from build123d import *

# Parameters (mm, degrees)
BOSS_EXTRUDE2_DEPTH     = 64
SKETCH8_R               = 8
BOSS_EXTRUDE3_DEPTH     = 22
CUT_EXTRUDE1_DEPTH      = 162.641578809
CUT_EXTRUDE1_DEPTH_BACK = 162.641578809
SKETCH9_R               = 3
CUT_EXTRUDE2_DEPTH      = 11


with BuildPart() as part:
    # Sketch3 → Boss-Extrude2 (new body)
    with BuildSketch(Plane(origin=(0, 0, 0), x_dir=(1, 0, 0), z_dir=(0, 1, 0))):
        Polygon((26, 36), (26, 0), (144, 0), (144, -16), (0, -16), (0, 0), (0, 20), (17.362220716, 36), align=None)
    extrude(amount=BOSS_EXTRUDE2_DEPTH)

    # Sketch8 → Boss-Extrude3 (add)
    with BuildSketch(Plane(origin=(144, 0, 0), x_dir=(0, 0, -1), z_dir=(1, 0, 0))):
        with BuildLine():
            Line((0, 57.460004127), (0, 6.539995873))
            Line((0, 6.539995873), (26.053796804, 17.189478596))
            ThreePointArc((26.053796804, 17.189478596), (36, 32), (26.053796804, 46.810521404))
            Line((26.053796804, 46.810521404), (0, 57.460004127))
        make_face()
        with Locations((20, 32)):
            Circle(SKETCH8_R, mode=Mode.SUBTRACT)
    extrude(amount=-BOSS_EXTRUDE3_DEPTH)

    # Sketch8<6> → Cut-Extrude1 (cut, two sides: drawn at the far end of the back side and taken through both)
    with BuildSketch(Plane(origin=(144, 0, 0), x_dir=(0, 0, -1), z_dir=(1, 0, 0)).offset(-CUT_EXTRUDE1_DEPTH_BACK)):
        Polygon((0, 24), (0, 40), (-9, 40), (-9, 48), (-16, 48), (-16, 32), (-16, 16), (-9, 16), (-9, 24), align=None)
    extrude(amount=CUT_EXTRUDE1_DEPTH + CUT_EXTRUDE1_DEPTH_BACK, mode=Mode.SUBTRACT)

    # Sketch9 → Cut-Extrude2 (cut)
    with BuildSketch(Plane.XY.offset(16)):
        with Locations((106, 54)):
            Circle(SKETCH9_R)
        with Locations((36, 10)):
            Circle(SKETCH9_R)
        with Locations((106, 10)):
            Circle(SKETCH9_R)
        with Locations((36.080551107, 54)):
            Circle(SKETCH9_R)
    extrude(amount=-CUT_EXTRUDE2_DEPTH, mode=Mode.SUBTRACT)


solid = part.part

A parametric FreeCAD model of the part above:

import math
import FreeCAD as App
import Part
import Sketcher
from FreeCAD import Vector
Q = App.Units.Quantity

doc = App.newDocument("Part")
params = doc.addObject("Spreadsheet::Sheet", "Params")
for row, (alias, value) in enumerate([
    ("sketch1_width", "144 mm"),
    ("sketch1_width2", "118 mm"),
    ("sketch1_height", "36 mm"),
    ("sketch1_height2", "16 mm"),
    ("pad1_length", "64 mm"),
    ("sketch2_diameter", "16 mm"),
    ("sketch2_radius", "16 mm"),
    ("pad2_length", "22 mm"),
    ("sketch3_width", "16 mm"),
    ("sketch3_width2", "8 mm"),
    ("sketch3_height", "9 mm"),
    ("sketch3_height2", "7 mm"),
    ("sketch4_diameter", "6 mm"),
    ("pocket2_length", "11 mm"),
], start=1):
    params.set(f"A{row}", alias)
    params.set(f"B{row}", "=" + value)
    params.setAlias(f"B{row}", alias)

body = doc.addObject("PartDesign::Body", "Body")

sketch1 = body.newObject("Sketcher::SketchObject", "Sketch")
sketch1.AttachmentSupport = (doc.getObject("XZ_Plane"), [""])
sketch1.MapMode = "FlatFace"
sketch1.addGeometry([
    Part.LineSegment(Vector(26, 0, 0), Vector(26, -36, 0)),
    Part.LineSegment(Vector(26, -36, 0), Vector(17.362221, -36, 0)),
    Part.LineSegment(Vector(17.362221, -36, 0), Vector(0, -20, 0)),
    Part.LineSegment(Vector(0, -20, 0), Vector(0, 16, 0)),
    Part.LineSegment(Vector(0, 16, 0), Vector(144, 16, 0)),
    Part.LineSegment(Vector(144, 16, 0), Vector(144, 0, 0)),
    Part.LineSegment(Vector(144, 0, 0), Vector(26, 0, 0)),
], False)
sketch1.addConstraint([
    Sketcher.Constraint("Coincident", 0, 2, 1, 1),
    Sketcher.Constraint("Coincident", 1, 2, 2, 1),
    Sketcher.Constraint("Coincident", 2, 2, 3, 1),
    Sketcher.Constraint("Coincident", 3, 2, 4, 1),
    Sketcher.Constraint("Coincident", 4, 2, 5, 1),
    Sketcher.Constraint("Coincident", 5, 2, 6, 1),
    Sketcher.Constraint("Coincident", 6, 2, 0, 1),
    Sketcher.Constraint("Vertical", 0),
    Sketcher.Constraint("Horizontal", 1),
    Sketcher.Constraint("Vertical", 3),
    Sketcher.Constraint("Horizontal", 4),
    Sketcher.Constraint("Vertical", 5),
    Sketcher.Constraint("Horizontal", 6),
    Sketcher.Constraint("PointOnObject", 2, 2, -2),
    Sketcher.Constraint("PointOnObject", 5, 2, -1),
    Sketcher.Constraint("Equal", 0, 3),
    Sketcher.Constraint("DistanceX", 4, 1, 4, 2, Q("144 mm")),
    Sketcher.Constraint("DistanceX", 6, 2, 6, 1, Q("118 mm")),
    Sketcher.Constraint("DistanceY", 0, 2, 0, 1, Q("36 mm")),
    Sketcher.Constraint("DistanceY", 5, 2, 5, 1, Q("16 mm")),
    Sketcher.Constraint("DistanceX", 1, 2, 1, 1, Q("8.637779 mm")),
])
sketch1.setExpression("Constraints[16]", "Params.sketch1_width")
sketch1.setExpression("Constraints[17]", "Params.sketch1_width2")
sketch1.setExpression("Constraints[18]", "Params.sketch1_height")
sketch1.setExpression("Constraints[19]", "Params.sketch1_height2")
pad1 = body.newObject("PartDesign::Pad", "Pad")
pad1.Profile = sketch1
pad1.setExpression("Length", "Params.pad1_length")
pad1.Reversed = True

sketch2 = body.newObject("Sketcher::SketchObject", "Sketch001")
sketch2.AttachmentSupport = (doc.getObject("YZ_Plane"), [""])
sketch2.MapMode = "FlatFace"
sketch2.AttachmentOffset = App.Placement(Vector(0, 0, 144), App.Rotation())
sketch2.addGeometry([
    Part.LineSegment(Vector(57.460004, 0, 0), Vector(6.539996, 0, 0)),
    Part.LineSegment(Vector(6.539996, 0, 0), Vector(17.189479, -26.053797, 0)),
    Part.ArcOfCircle(Part.Circle(Vector(32, -20, 0), Vector(0, 0, 1), 16), math.radians(-157.767723), math.radians(-22.232277)),
    Part.LineSegment(Vector(46.810521, -26.053797, 0), Vector(57.460004, 0, 0)),
    Part.Circle(Vector(32, -20, 0), Vector(0, 0, 1), 8),
], False)
sketch2.addConstraint([
    Sketcher.Constraint("Coincident", 0, 2, 1, 1),
    Sketcher.Constraint("Tangent", 1, 2, 2, 1),
    Sketcher.Constraint("Tangent", 2, 2, 3, 1),
    Sketcher.Constraint("Coincident", 3, 2, 0, 1),
    Sketcher.Constraint("Horizontal", 0),
    Sketcher.Constraint("Coincident", 4, 3, 2, 3),
    Sketcher.Constraint("PointOnObject", 0, 2, -1),
    Sketcher.Constraint("Horizontal", 1, 2, 2, 2),
    Sketcher.Constraint("Diameter", 4, Q("16 mm")),
    Sketcher.Constraint("Radius", 2, Q("16 mm")),
    Sketcher.Constraint("DistanceX", -1, 1, 2, 3, Q("32 mm")),
    Sketcher.Constraint("DistanceY", 2, 3, -1, 1, Q("20 mm")),
    Sketcher.Constraint("DistanceX", 0, 2, 0, 1, Q("50.920008 mm")),
])
sketch2.setExpression("Constraints[8]", "Params.sketch2_diameter")
sketch2.setExpression("Constraints[9]", "Params.sketch2_radius")
pad2 = body.newObject("PartDesign::Pad", "Pad001")
pad2.Profile = sketch2
pad2.setExpression("Length", "Params.pad2_length")
pad2.Reversed = True

sketch3 = body.newObject("Sketcher::SketchObject", "Sketch002")
sketch3.AttachmentSupport = (doc.getObject("YZ_Plane"), [""])
sketch3.MapMode = "FlatFace"
sketch3.AttachmentOffset = App.Placement(Vector(0, 0, 144), App.Rotation())
sketch3.addGeometry([
    Part.LineSegment(Vector(24, 0, 0), Vector(40, 0, 0)),
    Part.LineSegment(Vector(40, 0, 0), Vector(40, 9, 0)),
    Part.LineSegment(Vector(40, 9, 0), Vector(48, 9, 0)),
    Part.LineSegment(Vector(48, 9, 0), Vector(48, 16, 0)),
    Part.LineSegment(Vector(48, 16, 0), Vector(16, 16, 0)),
    Part.LineSegment(Vector(16, 16, 0), Vector(16, 9, 0)),
    Part.LineSegment(Vector(16, 9, 0), Vector(24, 9, 0)),
    Part.LineSegment(Vector(24, 9, 0), Vector(24, 0, 0)),
], False)
sketch3.addConstraint([
    Sketcher.Constraint("Coincident", 0, 2, 1, 1),
    Sketcher.Constraint("Coincident", 1, 2, 2, 1),
    Sketcher.Constraint("Coincident", 2, 2, 3, 1),
    Sketcher.Constraint("Coincident", 3, 2, 4, 1),
    Sketcher.Constraint("Coincident", 4, 2, 5, 1),
    Sketcher.Constraint("Coincident", 5, 2, 6, 1),
    Sketcher.Constraint("Coincident", 6, 2, 7, 1),
    Sketcher.Constraint("Coincident", 7, 2, 0, 1),
    Sketcher.Constraint("Horizontal", 0),
    Sketcher.Constraint("Vertical", 1),
    Sketcher.Constraint("Horizontal", 2),
    Sketcher.Constraint("Vertical", 3),
    Sketcher.Constraint("Horizontal", 4),
    Sketcher.Constraint("Vertical", 5),
    Sketcher.Constraint("Horizontal", 6),
    Sketcher.Constraint("Vertical", 7),
    Sketcher.Constraint("PointOnObject", 0, 2, -1),
    Sketcher.Constraint("Horizontal", 2, 2, 5, 2),
    Sketcher.Constraint("Equal", 2, 6),
    Sketcher.Constraint("DistanceX", 0, 1, 0, 2, Q("16 mm")),
    Sketcher.Constraint("DistanceX", 2, 1, 2, 2, Q("8 mm")),
    Sketcher.Constraint("DistanceY", 1, 1, 1, 2, Q("9 mm")),
    Sketcher.Constraint("DistanceY", 3, 1, 3, 2, Q("7 mm")),
    Sketcher.Constraint("DistanceX", -1, 1, 0, 2, Q("40 mm")),
])
sketch3.setExpression("Constraints[19]", "Params.sketch3_width")
sketch3.setExpression("Constraints[20]", "Params.sketch3_width2")
sketch3.setExpression("Constraints[21]", "Params.sketch3_height")
sketch3.setExpression("Constraints[22]", "Params.sketch3_height2")
pocket1 = body.newObject("PartDesign::Pocket", "Pocket")
pocket1.Profile = sketch3
pocket1.Type = "ThroughAll"
pocket1.Midplane = True

sketch4 = body.newObject("Sketcher::SketchObject", "Sketch003")
sketch4.AttachmentSupport = (doc.getObject("XY_Plane"), [""])
sketch4.MapMode = "FlatFace"
sketch4.AttachmentOffset = App.Placement(Vector(0, 0, 16), App.Rotation())
sketch4.addGeometry([
    Part.Circle(Vector(106, 54, 0), Vector(0, 0, 1), 3),
    Part.Circle(Vector(36, 10, 0), Vector(0, 0, 1), 3),
    Part.Circle(Vector(106, 10, 0), Vector(0, 0, 1), 3),
    Part.Circle(Vector(36.080551, 54, 0), Vector(0, 0, 1), 3),
], False)
sketch4.addConstraint([
    Sketcher.Constraint("Equal", 0, 1),
    Sketcher.Constraint("Equal", 1, 2),
    Sketcher.Constraint("Equal", 2, 3),
    Sketcher.Constraint("Horizontal", 1, 3, 2, 3),
    Sketcher.Constraint("Horizontal", 0, 3, 3, 3),
    Sketcher.Constraint("Vertical", 0, 3, 2, 3),
    Sketcher.Constraint("Diameter", 0, Q("6 mm")),
    Sketcher.Constraint("DistanceX", -1, 1, 0, 3, Q("106 mm")),
    Sketcher.Constraint("DistanceY", -1, 1, 0, 3, Q("54 mm")),
    Sketcher.Constraint("DistanceX", -1, 1, 1, 3, Q("36 mm")),
    Sketcher.Constraint("DistanceY", -1, 1, 1, 3, Q("10 mm")),
    Sketcher.Constraint("DistanceX", -1, 1, 3, 3, Q("36.080551 mm")),
])
sketch4.setExpression("Constraints[6]", "Params.sketch4_diameter")
pocket2 = body.newObject("PartDesign::Pocket", "Pocket001")
pocket2.Profile = sketch4
pocket2.setExpression("Length", "Params.pocket2_length")

doc.recompute()
